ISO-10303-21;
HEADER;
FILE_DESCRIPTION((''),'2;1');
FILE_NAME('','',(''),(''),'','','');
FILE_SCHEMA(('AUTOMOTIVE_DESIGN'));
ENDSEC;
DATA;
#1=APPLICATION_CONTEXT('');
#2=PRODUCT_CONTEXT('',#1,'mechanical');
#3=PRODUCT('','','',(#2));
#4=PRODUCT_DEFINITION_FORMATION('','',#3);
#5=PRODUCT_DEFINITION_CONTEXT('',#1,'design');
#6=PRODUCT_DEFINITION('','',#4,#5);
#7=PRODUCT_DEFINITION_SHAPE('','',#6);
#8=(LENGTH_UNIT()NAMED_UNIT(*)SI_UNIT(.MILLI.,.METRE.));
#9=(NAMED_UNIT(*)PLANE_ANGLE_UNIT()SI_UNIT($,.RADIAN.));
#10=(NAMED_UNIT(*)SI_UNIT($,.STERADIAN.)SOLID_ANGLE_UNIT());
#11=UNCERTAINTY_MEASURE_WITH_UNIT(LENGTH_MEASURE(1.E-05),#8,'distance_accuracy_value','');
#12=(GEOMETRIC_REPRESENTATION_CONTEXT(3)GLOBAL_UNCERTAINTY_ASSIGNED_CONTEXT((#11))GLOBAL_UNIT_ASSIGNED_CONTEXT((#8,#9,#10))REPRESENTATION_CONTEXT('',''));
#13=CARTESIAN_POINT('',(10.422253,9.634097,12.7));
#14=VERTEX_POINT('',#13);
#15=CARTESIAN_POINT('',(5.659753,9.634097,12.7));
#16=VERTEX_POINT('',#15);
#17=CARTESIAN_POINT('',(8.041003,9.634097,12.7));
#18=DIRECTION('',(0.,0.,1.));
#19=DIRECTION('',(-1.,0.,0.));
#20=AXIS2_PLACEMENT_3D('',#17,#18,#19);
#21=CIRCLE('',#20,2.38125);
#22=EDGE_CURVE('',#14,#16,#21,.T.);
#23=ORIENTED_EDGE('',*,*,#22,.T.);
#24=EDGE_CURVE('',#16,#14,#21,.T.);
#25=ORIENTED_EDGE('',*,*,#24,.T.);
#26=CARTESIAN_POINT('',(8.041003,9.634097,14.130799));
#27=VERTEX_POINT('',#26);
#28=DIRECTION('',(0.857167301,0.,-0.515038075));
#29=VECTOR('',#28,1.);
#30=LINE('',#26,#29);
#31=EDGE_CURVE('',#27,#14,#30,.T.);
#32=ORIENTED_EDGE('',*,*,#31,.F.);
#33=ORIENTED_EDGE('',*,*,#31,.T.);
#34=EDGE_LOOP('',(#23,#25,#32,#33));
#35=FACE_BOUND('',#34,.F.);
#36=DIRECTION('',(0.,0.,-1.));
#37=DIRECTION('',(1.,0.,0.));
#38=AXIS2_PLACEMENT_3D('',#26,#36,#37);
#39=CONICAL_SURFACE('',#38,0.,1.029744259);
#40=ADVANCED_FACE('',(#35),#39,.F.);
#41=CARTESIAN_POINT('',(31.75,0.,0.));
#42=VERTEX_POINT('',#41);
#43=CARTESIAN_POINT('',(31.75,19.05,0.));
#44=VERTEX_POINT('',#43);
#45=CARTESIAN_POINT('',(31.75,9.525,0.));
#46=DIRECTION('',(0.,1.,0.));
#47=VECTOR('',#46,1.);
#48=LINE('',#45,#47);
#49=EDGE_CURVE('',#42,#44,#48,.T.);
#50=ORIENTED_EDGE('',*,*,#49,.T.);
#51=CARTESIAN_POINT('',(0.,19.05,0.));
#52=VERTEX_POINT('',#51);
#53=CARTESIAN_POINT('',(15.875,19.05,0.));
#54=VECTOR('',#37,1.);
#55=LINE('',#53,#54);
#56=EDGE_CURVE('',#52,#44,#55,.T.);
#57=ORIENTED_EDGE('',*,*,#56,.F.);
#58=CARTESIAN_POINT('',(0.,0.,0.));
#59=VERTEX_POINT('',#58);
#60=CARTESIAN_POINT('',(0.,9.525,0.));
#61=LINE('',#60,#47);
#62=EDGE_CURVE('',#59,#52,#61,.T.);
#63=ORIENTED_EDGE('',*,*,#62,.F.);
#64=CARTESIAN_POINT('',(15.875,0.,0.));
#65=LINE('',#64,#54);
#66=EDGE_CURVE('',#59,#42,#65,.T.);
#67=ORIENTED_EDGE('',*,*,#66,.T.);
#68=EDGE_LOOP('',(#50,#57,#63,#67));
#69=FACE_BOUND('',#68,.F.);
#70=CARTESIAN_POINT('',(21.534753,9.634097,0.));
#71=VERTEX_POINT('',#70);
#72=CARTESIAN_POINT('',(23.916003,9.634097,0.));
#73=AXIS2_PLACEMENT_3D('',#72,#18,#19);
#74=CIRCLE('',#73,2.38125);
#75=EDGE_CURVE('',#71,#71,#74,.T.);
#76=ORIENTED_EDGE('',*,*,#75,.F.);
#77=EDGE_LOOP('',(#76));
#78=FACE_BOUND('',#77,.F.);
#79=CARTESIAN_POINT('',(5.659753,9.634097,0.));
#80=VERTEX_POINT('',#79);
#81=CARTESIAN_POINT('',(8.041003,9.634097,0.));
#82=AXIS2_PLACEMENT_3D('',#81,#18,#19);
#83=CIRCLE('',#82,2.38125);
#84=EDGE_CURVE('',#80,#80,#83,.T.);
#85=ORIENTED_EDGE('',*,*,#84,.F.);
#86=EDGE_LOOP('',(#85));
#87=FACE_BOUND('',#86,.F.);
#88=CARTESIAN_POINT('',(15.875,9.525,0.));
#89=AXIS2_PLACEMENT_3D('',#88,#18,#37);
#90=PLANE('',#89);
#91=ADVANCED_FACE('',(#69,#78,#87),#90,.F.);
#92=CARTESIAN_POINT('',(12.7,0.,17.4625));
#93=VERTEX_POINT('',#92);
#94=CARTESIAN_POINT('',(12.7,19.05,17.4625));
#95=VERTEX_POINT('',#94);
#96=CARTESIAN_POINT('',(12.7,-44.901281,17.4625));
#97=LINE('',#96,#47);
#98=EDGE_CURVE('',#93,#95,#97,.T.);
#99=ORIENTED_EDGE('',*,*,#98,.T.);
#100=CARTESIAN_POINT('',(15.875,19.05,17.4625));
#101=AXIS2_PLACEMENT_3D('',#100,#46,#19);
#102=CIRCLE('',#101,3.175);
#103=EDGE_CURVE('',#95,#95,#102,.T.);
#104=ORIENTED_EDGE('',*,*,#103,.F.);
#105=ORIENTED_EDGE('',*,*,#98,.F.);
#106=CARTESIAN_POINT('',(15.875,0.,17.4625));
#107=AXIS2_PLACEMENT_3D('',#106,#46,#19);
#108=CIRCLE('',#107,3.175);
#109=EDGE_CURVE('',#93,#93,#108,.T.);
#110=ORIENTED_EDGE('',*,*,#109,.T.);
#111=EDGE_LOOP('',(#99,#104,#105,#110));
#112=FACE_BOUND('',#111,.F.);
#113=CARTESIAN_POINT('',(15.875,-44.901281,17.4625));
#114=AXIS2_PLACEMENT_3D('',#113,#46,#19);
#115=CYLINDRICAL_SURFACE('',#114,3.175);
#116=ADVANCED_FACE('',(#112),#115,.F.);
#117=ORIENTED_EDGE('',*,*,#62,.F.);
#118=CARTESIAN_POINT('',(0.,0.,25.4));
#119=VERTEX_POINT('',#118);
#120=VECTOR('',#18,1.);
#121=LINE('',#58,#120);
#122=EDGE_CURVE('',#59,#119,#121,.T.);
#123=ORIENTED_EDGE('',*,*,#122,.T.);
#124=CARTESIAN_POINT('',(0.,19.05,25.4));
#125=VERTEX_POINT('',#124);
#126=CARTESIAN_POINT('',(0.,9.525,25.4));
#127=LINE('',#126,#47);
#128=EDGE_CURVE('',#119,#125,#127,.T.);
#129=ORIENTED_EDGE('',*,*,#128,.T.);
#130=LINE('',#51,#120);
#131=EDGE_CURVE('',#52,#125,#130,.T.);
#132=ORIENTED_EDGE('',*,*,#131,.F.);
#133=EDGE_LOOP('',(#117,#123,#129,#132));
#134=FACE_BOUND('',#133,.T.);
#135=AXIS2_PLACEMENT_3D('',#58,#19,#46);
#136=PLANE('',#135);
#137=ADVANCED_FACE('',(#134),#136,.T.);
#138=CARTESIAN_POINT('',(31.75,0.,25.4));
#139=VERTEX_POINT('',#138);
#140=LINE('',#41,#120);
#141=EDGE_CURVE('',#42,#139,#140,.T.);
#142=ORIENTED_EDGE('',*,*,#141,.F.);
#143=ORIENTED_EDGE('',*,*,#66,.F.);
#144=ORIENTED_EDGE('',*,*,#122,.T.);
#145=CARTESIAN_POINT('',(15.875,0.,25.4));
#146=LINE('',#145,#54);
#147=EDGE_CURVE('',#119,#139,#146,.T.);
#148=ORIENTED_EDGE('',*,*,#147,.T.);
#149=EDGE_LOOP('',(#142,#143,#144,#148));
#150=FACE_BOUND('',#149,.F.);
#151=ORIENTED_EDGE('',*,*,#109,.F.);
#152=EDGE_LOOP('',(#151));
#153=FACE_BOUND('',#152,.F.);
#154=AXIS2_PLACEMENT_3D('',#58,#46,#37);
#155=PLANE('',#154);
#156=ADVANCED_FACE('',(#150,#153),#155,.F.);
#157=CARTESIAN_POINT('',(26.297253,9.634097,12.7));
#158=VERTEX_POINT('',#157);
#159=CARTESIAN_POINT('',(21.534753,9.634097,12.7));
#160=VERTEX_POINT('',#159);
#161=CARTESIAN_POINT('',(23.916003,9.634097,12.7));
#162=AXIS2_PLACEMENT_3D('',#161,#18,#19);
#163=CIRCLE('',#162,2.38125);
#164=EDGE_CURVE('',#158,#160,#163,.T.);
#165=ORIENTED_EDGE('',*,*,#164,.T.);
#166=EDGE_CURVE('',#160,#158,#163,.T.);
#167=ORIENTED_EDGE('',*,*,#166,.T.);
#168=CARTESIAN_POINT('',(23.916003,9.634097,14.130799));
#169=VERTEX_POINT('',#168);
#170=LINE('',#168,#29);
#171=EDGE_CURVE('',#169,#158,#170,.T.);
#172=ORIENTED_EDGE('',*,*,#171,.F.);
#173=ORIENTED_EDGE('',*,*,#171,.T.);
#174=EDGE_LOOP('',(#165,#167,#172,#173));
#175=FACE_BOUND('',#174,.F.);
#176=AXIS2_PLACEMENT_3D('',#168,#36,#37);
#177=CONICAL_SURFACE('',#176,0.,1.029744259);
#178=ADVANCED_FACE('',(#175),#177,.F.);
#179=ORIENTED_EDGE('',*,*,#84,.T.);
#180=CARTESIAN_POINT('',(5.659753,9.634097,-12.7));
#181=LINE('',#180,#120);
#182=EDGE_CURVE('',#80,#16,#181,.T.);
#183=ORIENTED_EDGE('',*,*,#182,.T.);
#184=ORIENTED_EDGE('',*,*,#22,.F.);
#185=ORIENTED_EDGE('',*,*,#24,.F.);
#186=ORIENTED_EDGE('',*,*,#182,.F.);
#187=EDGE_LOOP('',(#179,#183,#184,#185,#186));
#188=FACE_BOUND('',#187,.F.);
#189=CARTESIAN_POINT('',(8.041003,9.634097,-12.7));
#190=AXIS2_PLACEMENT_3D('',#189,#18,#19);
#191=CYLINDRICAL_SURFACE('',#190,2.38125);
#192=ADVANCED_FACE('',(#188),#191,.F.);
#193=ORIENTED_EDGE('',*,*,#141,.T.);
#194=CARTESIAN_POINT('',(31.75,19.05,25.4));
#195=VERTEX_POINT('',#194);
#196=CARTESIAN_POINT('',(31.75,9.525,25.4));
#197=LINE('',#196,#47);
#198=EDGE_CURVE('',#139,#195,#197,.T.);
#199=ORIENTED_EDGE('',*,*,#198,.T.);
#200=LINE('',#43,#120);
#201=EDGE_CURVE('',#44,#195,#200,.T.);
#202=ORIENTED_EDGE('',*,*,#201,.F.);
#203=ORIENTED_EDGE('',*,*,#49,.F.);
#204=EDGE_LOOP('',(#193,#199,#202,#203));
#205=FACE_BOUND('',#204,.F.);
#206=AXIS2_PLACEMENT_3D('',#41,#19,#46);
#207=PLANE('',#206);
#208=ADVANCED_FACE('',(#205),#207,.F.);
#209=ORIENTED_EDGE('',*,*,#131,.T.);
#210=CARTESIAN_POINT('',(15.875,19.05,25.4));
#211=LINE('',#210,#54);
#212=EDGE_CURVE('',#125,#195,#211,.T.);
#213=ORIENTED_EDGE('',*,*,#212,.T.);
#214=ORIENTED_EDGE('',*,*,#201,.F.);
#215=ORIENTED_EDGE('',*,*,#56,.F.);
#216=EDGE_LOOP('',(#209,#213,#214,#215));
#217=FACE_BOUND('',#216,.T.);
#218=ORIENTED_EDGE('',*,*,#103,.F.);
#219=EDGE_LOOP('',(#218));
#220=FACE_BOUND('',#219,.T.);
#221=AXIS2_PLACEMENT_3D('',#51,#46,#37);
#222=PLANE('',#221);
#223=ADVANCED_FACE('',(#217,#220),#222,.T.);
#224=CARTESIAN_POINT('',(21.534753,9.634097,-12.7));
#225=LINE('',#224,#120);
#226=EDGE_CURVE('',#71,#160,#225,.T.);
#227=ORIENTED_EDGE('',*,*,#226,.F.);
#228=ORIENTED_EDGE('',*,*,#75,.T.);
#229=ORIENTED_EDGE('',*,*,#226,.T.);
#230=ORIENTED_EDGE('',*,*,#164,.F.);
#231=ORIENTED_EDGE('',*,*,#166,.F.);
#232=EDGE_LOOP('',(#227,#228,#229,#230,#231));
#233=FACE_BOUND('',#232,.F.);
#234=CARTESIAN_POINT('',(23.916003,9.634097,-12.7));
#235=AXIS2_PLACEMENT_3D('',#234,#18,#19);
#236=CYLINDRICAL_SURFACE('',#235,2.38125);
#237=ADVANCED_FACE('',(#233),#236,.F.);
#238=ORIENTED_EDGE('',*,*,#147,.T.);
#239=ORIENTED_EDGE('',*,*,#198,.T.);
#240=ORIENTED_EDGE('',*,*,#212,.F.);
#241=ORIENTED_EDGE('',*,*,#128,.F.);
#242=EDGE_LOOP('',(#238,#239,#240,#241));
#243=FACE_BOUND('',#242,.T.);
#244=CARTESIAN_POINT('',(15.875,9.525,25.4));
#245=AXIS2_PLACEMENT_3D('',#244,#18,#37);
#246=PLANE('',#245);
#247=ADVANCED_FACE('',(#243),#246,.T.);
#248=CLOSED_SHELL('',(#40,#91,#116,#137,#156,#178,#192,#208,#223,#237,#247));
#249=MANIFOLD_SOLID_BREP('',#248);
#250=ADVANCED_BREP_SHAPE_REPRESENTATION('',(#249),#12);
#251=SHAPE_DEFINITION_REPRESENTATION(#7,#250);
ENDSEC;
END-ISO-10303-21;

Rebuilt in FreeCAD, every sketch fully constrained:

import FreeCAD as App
import Part
import Sketcher
from FreeCAD import Vector
Q = App.Units.Quantity


def add_polygon(sketch, points):
    """Adds a closed chain of lines whose ends are joined by coincident constraints."""
    first, n = sketch.GeometryCount, len(points)
    for a, b in zip(points, points[1:] + points[:1]):
        sketch.addGeometry(Part.LineSegment(App.Vector(*a, 0), App.Vector(*b, 0)), False)
    for i in range(n):
        sketch.addConstraint(Sketcher.Constraint("Coincident", first + i, 2, first + (i + 1) % n, 1))

doc = App.newDocument("Part")
body = doc.addObject("PartDesign::Body", "Body")

sketch1 = doc.addObject("Sketcher::SketchObject", "Sketch")
body.addObject(sketch1)
sketch1.AttachmentSupport = (doc.XY_Plane, [""])
sketch1.MapMode = "FlatFace"
add_polygon(sketch1, [(0, 19), (0, 0), (32, 0), (32, 19)])
sketch1.addConstraint([
    Sketcher.Constraint("Vertical", 0),
    Sketcher.Constraint("Horizontal", 1),
    Sketcher.Constraint("Vertical", 2),
    Sketcher.Constraint("Horizontal", 3),
    Sketcher.Constraint("Coincident", 0, 2, -1, 1),
    Sketcher.Constraint("DistanceX", 1, 1, 1, 2, Q("1.25 in")),
    Sketcher.Constraint("DistanceY", 0, 2, 0, 1, Q("0.75 in")),
])
pad1 = doc.addObject("PartDesign::Pad", "Pad")
body.addObject(pad1)
pad1.Profile = sketch1
pad1.Length = Q("1 in")

sketch2 = doc.addObject("Sketcher::SketchObject", "Sketch001")
body.addObject(sketch2)
sketch2.AttachmentSupport = (doc.XY_Plane, [""])
sketch2.MapMode = "FlatFace"
sketch2.addGeometry([
    Part.Circle(Vector(8, 9.6, 0), Vector(0, 0, 1), 2.4),
    Part.Circle(Vector(23.9, 9.6, 0), Vector(0, 0, 1), 2.4),
], False)
sketch2.addConstraint([
    Sketcher.Constraint("Equal", 0, 1),
    Sketcher.Constraint("Horizontal", 0, 3, 1, 3),
    Sketcher.Constraint("Diameter", 0, Q("0.1875 in")),
    Sketcher.Constraint("DistanceX", 0, 3, 1, 3, Q("0.625 in")),
    Sketcher.Constraint("DistanceX", -1, 1, 0, 3, 8.041003),
    Sketcher.Constraint("DistanceY", -1, 1, 0, 3, 9.634097),
])
doc.recompute()
hole = doc.addObject("PartDesign::Hole", "Hole")
body.addObject(hole)
hole.Profile = sketch2
hole.ThreadType = "None"
hole.Diameter = Q("0.1875 in")
hole.DepthType = "Dimension"
hole.Depth = Q("0.5 in")
hole.DrillPoint = "Angled"
hole.DrillPointAngle = 118
hole.Reversed = True

sketch3 = doc.addObject("Sketcher::SketchObject", "Sketch002")
body.addObject(sketch3)
sketch3.AttachmentSupport = (doc.XZ_Plane, [""])
sketch3.MapMode = "FlatFace"
sketch3.addGeometry(Part.Circle(Vector(15.9, 17.5, 0), Vector(0, 0, 1), 3.2), False)
sketch3.addConstraint([
    Sketcher.Constraint("Diameter", 0, Q("0.25 in")),
    Sketcher.Constraint("DistanceX", -1, 1, 0, 3, Q("0.625 in")),
    Sketcher.Constraint("DistanceY", -1, 1, 0, 3, Q("0.6875 in")),
])
doc.recompute()
hole2 = doc.addObject("PartDesign::Hole", "Hole001")
body.addObject(hole2)
hole2.Profile = sketch3
hole2.ThreadType = "None"
hole2.Diameter = Q("0.25 in")
hole2.DepthType = "ThroughAll"

doc.recompute()
